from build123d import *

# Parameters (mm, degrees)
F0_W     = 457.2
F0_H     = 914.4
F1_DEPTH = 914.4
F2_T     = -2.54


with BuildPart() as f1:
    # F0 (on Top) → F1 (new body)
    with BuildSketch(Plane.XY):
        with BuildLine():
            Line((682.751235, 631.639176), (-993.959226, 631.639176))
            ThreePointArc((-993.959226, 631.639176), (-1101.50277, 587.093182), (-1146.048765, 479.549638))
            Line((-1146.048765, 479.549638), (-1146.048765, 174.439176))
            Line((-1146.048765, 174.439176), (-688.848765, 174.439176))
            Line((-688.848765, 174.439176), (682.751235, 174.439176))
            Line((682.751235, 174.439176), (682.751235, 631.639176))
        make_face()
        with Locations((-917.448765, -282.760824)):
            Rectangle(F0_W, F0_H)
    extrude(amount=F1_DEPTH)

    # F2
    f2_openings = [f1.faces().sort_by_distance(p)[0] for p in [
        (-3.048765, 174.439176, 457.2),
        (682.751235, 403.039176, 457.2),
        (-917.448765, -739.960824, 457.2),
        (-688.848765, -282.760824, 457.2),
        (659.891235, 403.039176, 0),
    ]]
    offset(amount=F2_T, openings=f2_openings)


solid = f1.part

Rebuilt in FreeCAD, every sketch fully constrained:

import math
import FreeCAD as App
import Part
import Sketcher
Q = App.Units.Quantity


def faces_at(feature, points):
    """Names of the faces that lie closest to the given points."""
    faces = feature.Shape.Faces
    near = lambda p: min(range(len(faces)), key=lambda i: faces[i].distToShape(Part.Vertex(*p))[0])
    return sorted({f"Face{near(p) + 1}" for p in points})

doc = App.newDocument("Part")
params = doc.addObject("Spreadsheet::Sheet", "Params")
for row, (alias, value) in enumerate([
    ("sketch1_width", "18 in"),
    ("sketch1_width2", "54 in"),
    ("sketch1_height", "36 in"),
    ("pad1_length", "36 in"),
    ("thickness_wall", "0.1 in"),
], start=1):
    params.set(f"A{row}", alias)
    params.set(f"B{row}", "=" + value)
    params.setAlias(f"B{row}", alias)

body = doc.addObject("PartDesign::Body", "Body")

# Sketch on XY plane
sketch1 = body.newObject("Sketcher::SketchObject", "Sketch")
sketch1.AttachmentSupport = (doc.getObject("XY_Plane"), [""])
sketch1.MapMode = "FlatFace"
sketch1.addGeometry([
    Part.LineSegment(App.Vector(683, 632, 0), App.Vector(-994, 632, 0)),  # 0
    Part.ArcOfCircle(Part.Circle(App.Vector(-994, 480, 0), App.Vector(0, 0, 1), 152), math.radians(90), math.radians(180)),  # 1
    Part.LineSegment(App.Vector(-1146, 480, 0), App.Vector(-1146, -740, 0)),  # 2
    Part.LineSegment(App.Vector(-1146, -740, 0), App.Vector(-689, -740, 0)),  # 3
    Part.LineSegment(App.Vector(-689, -740, 0), App.Vector(-689, 174, 0)),  # 4
    Part.LineSegment(App.Vector(-689, 174, 0), App.Vector(683, 174, 0)),  # 5
    Part.LineSegment(App.Vector(683, 174, 0), App.Vector(683, 632, 0)),  # 6
], False)
sketch1.addConstraint([
    Sketcher.Constraint("Tangent", 0, 2, 1, 1),
    Sketcher.Constraint("Tangent", 1, 2, 2, 1),
    Sketcher.Constraint("Coincident", 2, 2, 3, 1),
    Sketcher.Constraint("Coincident", 3, 2, 4, 1),
    Sketcher.Constraint("Coincident", 4, 2, 5, 1),
    Sketcher.Constraint("Coincident", 5, 2, 6, 1),
    Sketcher.Constraint("Coincident", 6, 2, 0, 1),
    Sketcher.Constraint("Horizontal", 0),
    Sketcher.Constraint("Vertical", 2),
    Sketcher.Constraint("Horizontal", 3),
    Sketcher.Constraint("Vertical", 4),
    Sketcher.Constraint("Horizontal", 5),
    Sketcher.Constraint("Vertical", 6),
    Sketcher.Constraint("Equal", 3, 6),
    Sketcher.Constraint("DistanceX", 3, 1, 3, 2, Q("18 in")),
    Sketcher.Constraint("DistanceX", 5, 1, 5, 2, Q("54 in")),
    Sketcher.Constraint("DistanceY", 4, 1, 4, 2, Q("36 in")),
    Sketcher.Constraint("Radius", 1, 152.089539),
    Sketcher.Constraint("DistanceX", 1, 3, -1, 1, 993.959226),
    Sketcher.Constraint("DistanceY", -1, 1, 1, 3, 479.549637),
])
sketch1.setExpression("Constraints[14]", "Params.sketch1_width")
sketch1.setExpression("Constraints[15]", "Params.sketch1_width2")
sketch1.setExpression("Constraints[16]", "Params.sketch1_height")
pad1 = body.newObject("PartDesign::Pad", "Pad")
pad1.Profile = sketch1
pad1.setExpression("Length", "Params.pad1_length")
doc.recompute()

thickness = body.newObject("PartDesign::Thickness", "Thickness")
thickness.Base = (pad1, faces_at(pad1, [
    (-3.049, 174.439, 457.2),
    (682.751, 403.039, 457.2),
    (-917.449, -739.961, 457.2),
    (-688.849, -282.761, 457.2),
    (-963.169, -54.161, 0),
]))
thickness.setExpression("Value", "Params.thickness_wall")
thickness.Reversed = True
thickness.Join = "Arc"

doc.recompute()
